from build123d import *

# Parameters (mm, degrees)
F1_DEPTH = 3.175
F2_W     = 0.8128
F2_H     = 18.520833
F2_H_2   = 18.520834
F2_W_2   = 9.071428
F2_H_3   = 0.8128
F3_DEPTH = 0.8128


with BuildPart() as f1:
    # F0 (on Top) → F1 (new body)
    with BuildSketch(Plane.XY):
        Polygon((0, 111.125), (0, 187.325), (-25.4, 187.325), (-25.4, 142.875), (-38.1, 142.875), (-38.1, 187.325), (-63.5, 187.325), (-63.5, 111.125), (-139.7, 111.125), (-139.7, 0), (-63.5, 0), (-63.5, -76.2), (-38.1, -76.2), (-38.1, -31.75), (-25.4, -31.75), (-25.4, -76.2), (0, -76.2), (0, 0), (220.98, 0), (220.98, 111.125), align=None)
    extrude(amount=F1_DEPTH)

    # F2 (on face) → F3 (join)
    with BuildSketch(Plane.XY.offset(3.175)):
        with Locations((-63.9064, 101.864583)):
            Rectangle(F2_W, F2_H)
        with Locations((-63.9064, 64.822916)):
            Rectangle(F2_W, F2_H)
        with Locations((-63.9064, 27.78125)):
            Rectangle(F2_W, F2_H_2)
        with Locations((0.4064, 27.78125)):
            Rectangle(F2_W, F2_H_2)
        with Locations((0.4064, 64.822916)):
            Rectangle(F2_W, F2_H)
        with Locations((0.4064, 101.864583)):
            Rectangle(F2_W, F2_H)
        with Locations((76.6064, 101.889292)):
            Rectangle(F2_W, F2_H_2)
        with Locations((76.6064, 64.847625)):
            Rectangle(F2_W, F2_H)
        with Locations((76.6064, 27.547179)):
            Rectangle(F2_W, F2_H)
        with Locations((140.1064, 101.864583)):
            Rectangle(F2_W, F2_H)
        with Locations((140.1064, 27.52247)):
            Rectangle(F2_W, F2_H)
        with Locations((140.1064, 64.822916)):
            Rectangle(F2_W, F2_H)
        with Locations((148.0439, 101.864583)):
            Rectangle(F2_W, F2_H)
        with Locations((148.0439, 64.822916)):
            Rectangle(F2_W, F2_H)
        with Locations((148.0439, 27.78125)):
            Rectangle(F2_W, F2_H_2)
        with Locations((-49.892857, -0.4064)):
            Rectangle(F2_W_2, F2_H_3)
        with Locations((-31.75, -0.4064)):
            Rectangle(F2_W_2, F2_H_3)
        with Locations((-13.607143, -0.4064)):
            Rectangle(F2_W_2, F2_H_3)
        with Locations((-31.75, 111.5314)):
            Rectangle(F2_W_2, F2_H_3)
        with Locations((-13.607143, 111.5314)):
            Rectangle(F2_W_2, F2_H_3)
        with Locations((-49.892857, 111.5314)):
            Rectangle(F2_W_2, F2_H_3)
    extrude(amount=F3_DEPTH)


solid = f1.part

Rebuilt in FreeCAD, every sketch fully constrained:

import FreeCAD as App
import Part
import Sketcher

V = App.Vector
Q = App.Units.Quantity

doc = App.newDocument("Part")
body = doc.addObject("PartDesign::Body", "Body")

# Sketch on XY plane
sketch1 = body.newObject("Sketcher::SketchObject", "Sketch")
sketch1.AttachmentSupport = (doc.getObject("XY_Plane"), [""])
sketch1.MapMode = "FlatFace"
sketch1.addGeometry([
    Part.LineSegment(V(0, 111.125, 0), V(0, 187.325, 0)),  # 0
    Part.LineSegment(V(0, 187.325, 0), V(-25.4, 187.325, 0)),  # 1
    Part.LineSegment(V(-25.4, 187.325, 0), V(-25.4, 142.875, 0)),  # 2
    Part.LineSegment(V(-25.4, 142.875, 0), V(-38.1, 142.875, 0)),  # 3
    Part.LineSegment(V(-38.1, 142.875, 0), V(-38.1, 187.325, 0)),  # 4
    Part.LineSegment(V(-38.1, 187.325, 0), V(-63.5, 187.325, 0)),  # 5
    Part.LineSegment(V(-63.5, 187.325, 0), V(-63.5, 111.125, 0)),  # 6
    Part.LineSegment(V(-63.5, 111.125, 0), V(-139.7, 111.125, 0)),  # 7
    Part.LineSegment(V(-139.7, 111.125, 0), V(-139.7, 0, 0)),  # 8
    Part.LineSegment(V(-139.7, 0, 0), V(-63.5, 0, 0)),  # 9
    Part.LineSegment(V(-63.5, 0, 0), V(-63.5, -76.2, 0)),  # 10
    Part.LineSegment(V(-63.5, -76.2, 0), V(-38.1, -76.2, 0)),  # 11
    Part.LineSegment(V(-38.1, -76.2, 0), V(-38.1, -31.75, 0)),  # 12
    Part.LineSegment(V(-38.1, -31.75, 0), V(-25.4, -31.75, 0)),  # 13
    Part.LineSegment(V(-25.4, -31.75, 0), V(-25.4, -76.2, 0)),  # 14
    Part.LineSegment(V(-25.4, -76.2, 0), V(0, -76.2, 0)),  # 15
    Part.LineSegment(V(0, -76.2, 0), V(0, 0, 0)),  # 16
    Part.LineSegment(V(0, 0, 0), V(220.98, 0, 0)),  # 17
    Part.LineSegment(V(220.98, 0, 0), V(220.98, 111.125, 0)),  # 18
    Part.LineSegment(V(220.98, 111.125, 0), V(0, 111.125, 0)),  # 19
], False)
sketch1.addConstraint([
    Sketcher.Constraint("Coincident", 0, 2, 1, 1),
    Sketcher.Constraint("Coincident", 1, 2, 2, 1),
    Sketcher.Constraint("Coincident", 2, 2, 3, 1),
    Sketcher.Constraint("Coincident", 3, 2, 4, 1),
    Sketcher.Constraint("Coincident", 4, 2, 5, 1),
    Sketcher.Constraint("Coincident", 5, 2, 6, 1),
    Sketcher.Constraint("Coincident", 6, 2, 7, 1),
    Sketcher.Constraint("Coincident", 7, 2, 8, 1),
    Sketcher.Constraint("Coincident", 8, 2, 9, 1),
    Sketcher.Constraint("Coincident", 9, 2, 10, 1),
    Sketcher.Constraint("Coincident", 10, 2, 11, 1),
    Sketcher.Constraint("Coincident", 11, 2, 12, 1),
    Sketcher.Constraint("Coincident", 12, 2, 13, 1),
    Sketcher.Constraint("Coincident", 13, 2, 14, 1),
    Sketcher.Constraint("Coincident", 14, 2, 15, 1),
    Sketcher.Constraint("Coincident", 15, 2, 16, 1),
    Sketcher.Constraint("Coincident", 16, 2, 17, 1),
    Sketcher.Constraint("Coincident", 17, 2, 18, 1),
    Sketcher.Constraint("Coincident", 18, 2, 19, 1),
    Sketcher.Constraint("Coincident", 19, 2, 0, 1),
    Sketcher.Constraint("Vertical", 0),
    Sketcher.Constraint("Horizontal", 1),
    Sketcher.Constraint("Vertical", 2),
    Sketcher.Constraint("Horizontal", 3),
    Sketcher.Constraint("Vertical", 4),
    Sketcher.Constraint("Horizontal", 5),
    Sketcher.Constraint("Vertical", 6),
    Sketcher.Constraint("Horizontal", 7),
    Sketcher.Constraint("Vertical", 8),
    Sketcher.Constraint("Horizontal", 9),
    Sketcher.Constraint("Vertical", 10),
    Sketcher.Constraint("Horizontal", 11),
    Sketcher.Constraint("Vertical", 12),
    Sketcher.Constraint("Horizontal", 13),
    Sketcher.Constraint("Vertical", 14),
    Sketcher.Constraint("Horizontal", 15),
    Sketcher.Constraint("Vertical", 16),
    Sketcher.Constraint("Horizontal", 17),
    Sketcher.Constraint("Vertical", 18),
    Sketcher.Constraint("Horizontal", 19),
    Sketcher.Constraint("Coincident", 16, 2, -1, 1),
    Sketcher.Constraint("PointOnObject", 0, 2, -2),
    Sketcher.Constraint("PointOnObject", 8, 2, -1),
    Sketcher.Constraint("Horizontal", 1, 2, 4, 2),
    Sketcher.Constraint("Horizontal", 11, 2, 14, 2),
    Sketcher.Constraint("Horizontal", 7, 2, 18, 2),
    Sketcher.Constraint("Vertical", 6, 2, 9, 2),
    Sketcher.Constraint("Vertical", 4, 2, 11, 2),
    Sketcher.Constraint("Vertical", 2, 2, 13, 2),
    Sketcher.Constraint("Equal", 1, 5),
    Sketcher.Constraint("Equal", 9, 0),
    Sketcher.Constraint("Equal", 6, 10),
    Sketcher.Constraint("Equal", 4, 12),
    Sketcher.Constraint("DistanceX", 1, 2, 1, 1, Q("1 in")),
    Sketcher.Constraint("DistanceX", 7, 2, 7, 1, Q("3 in")),
    Sketcher.Constraint("DistanceX", 3, 2, 3, 1, Q("0.5 in")),
    Sketcher.Constraint("DistanceX", 17, 1, 17, 2, Q("8.7 in")),
    Sketcher.Constraint("DistanceY", 2, 2, 2, 1, Q("1.75 in")),
    Sketcher.Constraint("DistanceY", 8, 2, 8, 1, Q("4.375 in")),
])
pad1 = body.newObject("PartDesign::Pad", "Pad")
pad1.Profile = sketch1
pad1.Length = Q("0.125 in")

# Sketch on XY plane
sketch2 = body.newObject("Sketcher::SketchObject", "Sketch001")
sketch2.AttachmentSupport = (doc.getObject("XY_Plane"), [""])
sketch2.MapMode = "FlatFace"
sketch2.AttachmentOffset = App.Placement(V(0, 0, 0.125 * 25.4), App.Rotation())
sketch2.addGeometry([
    Part.LineSegment(V(-64.3128, 111.125, 0), V(-64.3128, 92.604167, 0)),  # 0
    Part.LineSegment(V(-64.3128, 92.604167, 0), V(-63.5, 92.604167, 0)),  # 1
    Part.LineSegment(V(-63.5, 92.604167, 0), V(-63.5, 111.125, 0)),  # 2
    Part.LineSegment(V(-63.5, 111.125, 0), V(-64.3128, 111.125, 0)),  # 3
    Part.LineSegment(V(-64.3128, 74.083332, 0), V(-64.3128, 55.5625, 0)),  # 4
    Part.LineSegment(V(-64.3128, 55.5625, 0), V(-63.5, 55.5625, 0)),  # 5
    Part.LineSegment(V(-63.5, 55.5625, 0), V(-63.5, 74.083332, 0)),  # 6
    Part.LineSegment(V(-63.5, 74.083332, 0), V(-64.3128, 74.083332, 0)),  # 7
    Part.LineSegment(V(-64.3128, 37.041667, 0), V(-64.3128, 18.520833, 0)),  # 8
    Part.LineSegment(V(-64.3128, 18.520833, 0), V(-63.5, 18.520833, 0)),  # 9
    Part.LineSegment(V(-63.5, 18.520833, 0), V(-63.5, 37.041667, 0)),  # 10
    Part.LineSegment(V(-63.5, 37.041667, 0), V(-64.3128, 37.041667, 0)),  # 11
    Part.LineSegment(V(0, 37.041667, 0), V(0, 18.520833, 0)),  # 12
    Part.LineSegment(V(0, 18.520833, 0), V(0.8128, 18.520833, 0)),  # 13
    Part.LineSegment(V(0.8128, 18.520833, 0), V(0.8128, 37.041667, 0)),  # 14
    Part.LineSegment(V(0.8128, 37.041667, 0), V(0, 37.041667, 0)),  # 15
    Part.LineSegment(V(0, 74.083332, 0), V(0, 55.5625, 0)),  # 16
    Part.LineSegment(V(0, 55.5625, 0), V(0.8128, 55.5625, 0)),  # 17
    Part.LineSegment(V(0.8128, 55.5625, 0), V(0.8128, 74.083332, 0)),  # 18
    Part.LineSegment(V(0.8128, 74.083332, 0), V(0, 74.083332, 0)),  # 19
    Part.LineSegment(V(0, 111.125, 0), V(0, 92.604167, 0)),  # 20
    Part.LineSegment(V(0, 92.604167, 0), V(0.8128, 92.604167, 0)),  # 21
    Part.LineSegment(V(0.8128, 92.604167, 0), V(0.8128, 111.125, 0)),  # 22
    Part.LineSegment(V(0.8128, 111.125, 0), V(0, 111.125, 0)),  # 23
    Part.LineSegment(V(76.2, 111.149709, 0), V(76.2, 92.628875, 0)),  # 24
    Part.LineSegment(V(76.2, 92.628875, 0), V(77.0128, 92.628875, 0)),  # 25
    Part.LineSegment(V(77.0128, 92.628875, 0), V(77.0128, 111.149709, 0)),  # 26
    Part.LineSegment(V(77.0128, 111.149709, 0), V(76.2, 111.149709, 0)),  # 27
    Part.LineSegment(V(76.2, 74.108041, 0), V(76.2, 55.587209, 0)),  # 28
    Part.LineSegment(V(76.2, 55.587209, 0), V(77.0128, 55.587209, 0)),  # 29
    Part.LineSegment(V(77.0128, 55.587209, 0), V(77.0128, 74.108041, 0)),  # 30
    Part.LineSegment(V(77.0128, 74.108041, 0), V(76.2, 74.108041, 0)),  # 31
    Part.LineSegment(V(76.2, 36.807595, 0), V(76.2, 18.286762, 0)),  # 32
    Part.LineSegment(V(76.2, 18.286762, 0), V(77.0128, 18.286762, 0)),  # 33
    Part.LineSegment(V(77.0128, 18.286762, 0), V(77.0128, 36.807595, 0)),  # 34
    Part.LineSegment(V(77.0128, 36.807595, 0), V(76.2, 36.807595, 0)),  # 35
    Part.LineSegment(V(139.7, 111.125, 0), V(139.7, 92.604167, 0)),  # 36
    Part.LineSegment(V(139.7, 92.604167, 0), V(140.5128, 92.604167, 0)),  # 37
    Part.LineSegment(V(140.5128, 92.604167, 0), V(140.5128, 111.125, 0)),  # 38
    Part.LineSegment(V(140.5128, 111.125, 0), V(139.7, 111.125, 0)),  # 39
    Part.LineSegment(V(139.7, 36.782886, 0), V(139.7, 18.262054, 0)),  # 40
    Part.LineSegment(V(139.7, 18.262054, 0), V(140.5128, 18.262054, 0)),  # 41
    Part.LineSegment(V(140.5128, 18.262054, 0), V(140.5128, 36.782886, 0)),  # 42
    Part.LineSegment(V(140.5128, 36.782886, 0), V(139.7, 36.782886, 0)),  # 43
    Part.LineSegment(V(139.7, 74.083332, 0), V(139.7, 55.5625, 0)),  # 44
    Part.LineSegment(V(139.7, 55.5625, 0), V(140.5128, 55.5625, 0)),  # 45
    Part.LineSegment(V(140.5128, 55.5625, 0), V(140.5128, 74.083332, 0)),  # 46
    Part.LineSegment(V(140.5128, 74.083332, 0), V(139.7, 74.083332, 0)),  # 47
    Part.LineSegment(V(147.6375, 111.125, 0), V(147.6375, 92.604167, 0)),  # 48
    Part.LineSegment(V(147.6375, 92.604167, 0), V(148.4503, 92.604167, 0)),  # 49
    Part.LineSegment(V(148.4503, 92.604167, 0), V(148.4503, 111.125, 0)),  # 50
    Part.LineSegment(V(148.4503, 111.125, 0), V(147.6375, 111.125, 0)),  # 51
    Part.LineSegment(V(147.6375, 74.083332, 0), V(147.6375, 55.5625, 0)),  # 52
    Part.LineSegment(V(147.6375, 55.5625, 0), V(148.4503, 55.5625, 0)),  # 53
    Part.LineSegment(V(148.4503, 55.5625, 0), V(148.4503, 74.083332, 0)),  # 54
    Part.LineSegment(V(148.4503, 74.083332, 0), V(147.6375, 74.083332, 0)),  # 55
    Part.LineSegment(V(147.6375, 37.041667, 0), V(147.6375, 18.520833, 0)),  # 56
    Part.LineSegment(V(147.6375, 18.520833, 0), V(148.4503, 18.520833, 0)),  # 57
    Part.LineSegment(V(148.4503, 18.520833, 0), V(148.4503, 37.041667, 0)),  # 58
    Part.LineSegment(V(148.4503, 37.041667, 0), V(147.6375, 37.041667, 0)),  # 59
    Part.LineSegment(V(-54.428571, 0, 0), V(-54.428571, -0.8128, 0)),  # 60
    Part.LineSegment(V(-54.428571, -0.8128, 0), V(-45.357143, -0.8128, 0)),  # 61
    Part.LineSegment(V(-45.357143, -0.8128, 0), V(-45.357143, 0, 0)),  # 62
    Part.LineSegment(V(-45.357143, 0, 0), V(-54.428571, 0, 0)),  # 63
    Part.LineSegment(V(-36.285714, 0, 0), V(-36.285714, -0.8128, 0)),  # 64
    Part.LineSegment(V(-36.285714, -0.8128, 0), V(-27.214286, -0.8128, 0)),  # 65
    Part.LineSegment(V(-27.214286, -0.8128, 0), V(-27.214286, 0, 0)),  # 66
    Part.LineSegment(V(-27.214286, 0, 0), V(-36.285714, 0, 0)),  # 67
    Part.LineSegment(V(-18.142857, 0, 0), V(-18.142857, -0.8128, 0)),  # 68
    Part.LineSegment(V(-18.142857, -0.8128, 0), V(-9.071429, -0.8128, 0)),  # 69
    Part.LineSegment(V(-9.071429, -0.8128, 0), V(-9.071429, 0, 0)),  # 70
    Part.LineSegment(V(-9.071429, 0, 0), V(-18.142857, 0, 0)),  # 71
    Part.LineSegment(V(-36.285714, 111.9378, 0), V(-36.285714, 111.125, 0)),  # 72
    Part.LineSegment(V(-36.285714, 111.125, 0), V(-27.214286, 111.125, 0)),  # 73
    Part.LineSegment(V(-27.214286, 111.125, 0), V(-27.214286, 111.9378, 0)),  # 74
    Part.LineSegment(V(-27.214286, 111.9378, 0), V(-36.285714, 111.9378, 0)),  # 75
    Part.LineSegment(V(-18.142857, 111.9378, 0), V(-18.142857, 111.125, 0)),  # 76
    Part.LineSegment(V(-18.142857, 111.125, 0), V(-9.071429, 111.125, 0)),  # 77
    Part.LineSegment(V(-9.071429, 111.125, 0), V(-9.071429, 111.9378, 0)),  # 78
    Part.LineSegment(V(-9.071429, 111.9378, 0), V(-18.142857, 111.9378, 0)),  # 79
    Part.LineSegment(V(-54.428571, 111.9378, 0), V(-54.428571, 111.125, 0)),  # 80
    Part.LineSegment(V(-54.428571, 111.125, 0), V(-45.357143, 111.125, 0)),  # 81
    Part.LineSegment(V(-45.357143, 111.125, 0), V(-45.357143, 111.9378, 0)),  # 82
    Part.LineSegment(V(-45.357143, 111.9378, 0), V(-54.428571, 111.9378, 0)),  # 83
], False)
sketch2.addConstraint([
    Sketcher.Constraint("Coincident", 0, 2, 1, 1),
    Sketcher.Constraint("Coincident", 1, 2, 2, 1),
    Sketcher.Constraint("Coincident", 2, 2, 3, 1),
    Sketcher.Constraint("Coincident", 3, 2, 0, 1),
    Sketcher.Constraint("Coincident", 4, 2, 5, 1),
    Sketcher.Constraint("Coincident", 5, 2, 6, 1),
    Sketcher.Constraint("Coincident", 6, 2, 7, 1),
    Sketcher.Constraint("Coincident", 7, 2, 4, 1),
    Sketcher.Constraint("Coincident", 8, 2, 9, 1),
    Sketcher.Constraint("Coincident", 9, 2, 10, 1),
    Sketcher.Constraint("Coincident", 10, 2, 11, 1),
    Sketcher.Constraint("Coincident", 11, 2, 8, 1),
    Sketcher.Constraint("Coincident", 12, 2, 13, 1),
    Sketcher.Constraint("Coincident", 13, 2, 14, 1),
    Sketcher.Constraint("Coincident", 14, 2, 15, 1),
    Sketcher.Constraint("Coincident", 15, 2, 12, 1),
    Sketcher.Constraint("Coincident", 16, 2, 17, 1),
    Sketcher.Constraint("Coincident", 17, 2, 18, 1),
    Sketcher.Constraint("Coincident", 18, 2, 19, 1),
    Sketcher.Constraint("Coincident", 19, 2, 16, 1),
    Sketcher.Constraint("Coincident", 20, 2, 21, 1),
    Sketcher.Constraint("Coincident", 21, 2, 22, 1),
    Sketcher.Constraint("Coincident", 22, 2, 23, 1),
    Sketcher.Constraint("Coincident", 23, 2, 20, 1),
    Sketcher.Constraint("Coincident", 24, 2, 25, 1),
    Sketcher.Constraint("Coincident", 25, 2, 26, 1),
    Sketcher.Constraint("Coincident", 26, 2, 27, 1),
    Sketcher.Constraint("Coincident", 27, 2, 24, 1),
    Sketcher.Constraint("Coincident", 28, 2, 29, 1),
    Sketcher.Constraint("Coincident", 29, 2, 30, 1),
    Sketcher.Constraint("Coincident", 30, 2, 31, 1),
    Sketcher.Constraint("Coincident", 31, 2, 28, 1),
    Sketcher.Constraint("Coincident", 32, 2, 33, 1),
    Sketcher.Constraint("Coincident", 33, 2, 34, 1),
    Sketcher.Constraint("Coincident", 34, 2, 35, 1),
    Sketcher.Constraint("Coincident", 35, 2, 32, 1),
    Sketcher.Constraint("Coincident", 36, 2, 37, 1),
    Sketcher.Constraint("Coincident", 37, 2, 38, 1),
    Sketcher.Constraint("Coincident", 38, 2, 39, 1),
    Sketcher.Constraint("Coincident", 39, 2, 36, 1),
    Sketcher.Constraint("Coincident", 40, 2, 41, 1),
    Sketcher.Constraint("Coincident", 41, 2, 42, 1),
    Sketcher.Constraint("Coincident", 42, 2, 43, 1),
    Sketcher.Constraint("Coincident", 43, 2, 40, 1),
    Sketcher.Constraint("Coincident", 44, 2, 45, 1),
    Sketcher.Constraint("Coincident", 45, 2, 46, 1),
    Sketcher.Constraint("Coincident", 46, 2, 47, 1),
    Sketcher.Constraint("Coincident", 47, 2, 44, 1),
    Sketcher.Constraint("Coincident", 48, 2, 49, 1),
    Sketcher.Constraint("Coincident", 49, 2, 50, 1),
    Sketcher.Constraint("Coincident", 50, 2, 51, 1),
    Sketcher.Constraint("Coincident", 51, 2, 48, 1),
    Sketcher.Constraint("Coincident", 52, 2, 53, 1),
    Sketcher.Constraint("Coincident", 53, 2, 54, 1),
    Sketcher.Constraint("Coincident", 54, 2, 55, 1),
    Sketcher.Constraint("Coincident", 55, 2, 52, 1),
    Sketcher.Constraint("Coincident", 56, 2, 57, 1),
    Sketcher.Constraint("Coincident", 57, 2, 58, 1),
    Sketcher.Constraint("Coincident", 58, 2, 59, 1),
    Sketcher.Constraint("Coincident", 59, 2, 56, 1),
    Sketcher.Constraint("Coincident", 60, 2, 61, 1),
    Sketcher.Constraint("Coincident", 61, 2, 62, 1),
    Sketcher.Constraint("Coincident", 62, 2, 63, 1),
    Sketcher.Constraint("Coincident", 63, 2, 60, 1),
    Sketcher.Constraint("Coincident", 64, 2, 65, 1),
    Sketcher.Constraint("Coincident", 65, 2, 66, 1),
    Sketcher.Constraint("Coincident", 66, 2, 67, 1),
    Sketcher.Constraint("Coincident", 67, 2, 64, 1),
    Sketcher.Constraint("Coincident", 68, 2, 69, 1),
    Sketcher.Constraint("Coincident", 69, 2, 70, 1),
    Sketcher.Constraint("Coincident", 70, 2, 71, 1),
    Sketcher.Constraint("Coincident", 71, 2, 68, 1),
    Sketcher.Constraint("Coincident", 72, 2, 73, 1),
    Sketcher.Constraint("Coincident", 73, 2, 74, 1),
    Sketcher.Constraint("Coincident", 74, 2, 75, 1),
    Sketcher.Constraint("Coincident", 75, 2, 72, 1),
    Sketcher.Constraint("Coincident", 76, 2, 77, 1),
    Sketcher.Constraint("Coincident", 77, 2, 78, 1),
    Sketcher.Constraint("Coincident", 78, 2, 79, 1),
    Sketcher.Constraint("Coincident", 79, 2, 76, 1),
    Sketcher.Constraint("Coincident", 80, 2, 81, 1),
    Sketcher.Constraint("Coincident", 81, 2, 82, 1),
    Sketcher.Constraint("Coincident", 82, 2, 83, 1),
    Sketcher.Constraint("Coincident", 83, 2, 80, 1),
    Sketcher.Constraint("Vertical", 0),
    Sketcher.Constraint("Horizontal", 1),
    Sketcher.Constraint("Vertical", 2),
    Sketcher.Constraint("Horizontal", 3),
    Sketcher.Constraint("Vertical", 4),
    Sketcher.Constraint("Horizontal", 5),
    Sketcher.Constraint("Vertical", 6),
    Sketcher.Constraint("Horizontal", 7),
    Sketcher.Constraint("Vertical", 8),
    Sketcher.Constraint("Horizontal", 9),
    Sketcher.Constraint("Vertical", 10),
    Sketcher.Constraint("Horizontal", 11),
    Sketcher.Constraint("Vertical", 12),
    Sketcher.Constraint("Horizontal", 13),
    Sketcher.Constraint("Vertical", 14),
    Sketcher.Constraint("Horizontal", 15),
    Sketcher.Constraint("Vertical", 16),
    Sketcher.Constraint("Horizontal", 17),
    Sketcher.Constraint("Vertical", 18),
    Sketcher.Constraint("Horizontal", 19),
    Sketcher.Constraint("Vertical", 20),
    Sketcher.Constraint("Horizontal", 21),
    Sketcher.Constraint("Vertical", 22),
    Sketcher.Constraint("Horizontal", 23),
    Sketcher.Constraint("Vertical", 24),
    Sketcher.Constraint("Horizontal", 25),
    Sketcher.Constraint("Vertical", 26),
    Sketcher.Constraint("Horizontal", 27),
    Sketcher.Constraint("Vertical", 28),
    Sketcher.Constraint("Horizontal", 29),
    Sketcher.Constraint("Vertical", 30),
    Sketcher.Constraint("Horizontal", 31),
    Sketcher.Constraint("Vertical", 32),
    Sketcher.Constraint("Horizontal", 33),
    Sketcher.Constraint("Vertical", 34),
    Sketcher.Constraint("Horizontal", 35),
    Sketcher.Constraint("Vertical", 36),
    Sketcher.Constraint("Horizontal", 37),
    Sketcher.Constraint("Vertical", 38),
    Sketcher.Constraint("Horizontal", 39),
    Sketcher.Constraint("Vertical", 40),
    Sketcher.Constraint("Horizontal", 41),
    Sketcher.Constraint("Vertical", 42),
    Sketcher.Constraint("Horizontal", 43),
    Sketcher.Constraint("Vertical", 44),
    Sketcher.Constraint("Horizontal", 45),
    Sketcher.Constraint("Vertical", 46),
    Sketcher.Constraint("Horizontal", 47),
    Sketcher.Constraint("Vertical", 48),
    Sketcher.Constraint("Horizontal", 49),
    Sketcher.Constraint("Vertical", 50),
    Sketcher.Constraint("Horizontal", 51),
    Sketcher.Constraint("Vertical", 52),
    Sketcher.Constraint("Horizontal", 53),
    Sketcher.Constraint("Vertical", 54),
    Sketcher.Constraint("Horizontal", 55),
    Sketcher.Constraint("Vertical", 56),
    Sketcher.Constraint("Horizontal", 57),
    Sketcher.Constraint("Vertical", 58),
    Sketcher.Constraint("Horizontal", 59),
    Sketcher.Constraint("Vertical", 60),
    Sketcher.Constraint("Horizontal", 61),
    Sketcher.Constraint("Vertical", 62),
    Sketcher.Constraint("Horizontal", 63),
    Sketcher.Constraint("Vertical", 64),
    Sketcher.Constraint("Horizontal", 65),
    Sketcher.Constraint("Vertical", 66),
    Sketcher.Constraint("Horizontal", 67),
    Sketcher.Constraint("Vertical", 68),
    Sketcher.Constraint("Horizontal", 69),
    Sketcher.Constraint("Vertical", 70),
    Sketcher.Constraint("Horizontal", 71),
    Sketcher.Constraint("Vertical", 72),
    Sketcher.Constraint("Horizontal", 73),
    Sketcher.Constraint("Vertical", 74),
    Sketcher.Constraint("Horizontal", 75),
    Sketcher.Constraint("Vertical", 76),
    Sketcher.Constraint("Horizontal", 77),
    Sketcher.Constraint("Vertical", 78),
    Sketcher.Constraint("Horizontal", 79),
    Sketcher.Constraint("Vertical", 80),
    Sketcher.Constraint("Horizontal", 81),
    Sketcher.Constraint("Vertical", 82),
    Sketcher.Constraint("Horizontal", 83),
    Sketcher.Constraint("PointOnObject", 12, 2, -2),
    Sketcher.Constraint("PointOnObject", 16, 2, -2),
    Sketcher.Constraint("PointOnObject", 20, 2, -2),
    Sketcher.Constraint("PointOnObject", 62, 2, -1),
    Sketcher.Constraint("PointOnObject", 66, 2, -1),
    Sketcher.Constraint("PointOnObject", 70, 2, -1),
    Sketcher.Constraint("Horizontal", 9, 2, 12, 2),
    Sketcher.Constraint("Horizontal", 11, 2, 14, 2),
    Sketcher.Constraint("Horizontal", 5, 2, 16, 2),
    Sketcher.Constraint("Horizontal", 7, 2, 18, 2),
    Sketcher.Constraint("Horizontal", 1, 2, 20, 2),
    Sketcher.Constraint("Horizontal", 3, 2, 22, 2),
    Sketcher.Constraint("Horizontal", 21, 2, 36, 2),
    Sketcher.Constraint("Horizontal", 23, 2, 38, 2),
    Sketcher.Constraint("Horizontal", 17, 2, 44, 2),
    Sketcher.Constraint("Horizontal", 19, 2, 46, 2),
    Sketcher.Constraint("Horizontal", 37, 2, 48, 2),
    Sketcher.Constraint("Horizontal", 39, 2, 50, 2),
    Sketcher.Constraint("Horizontal", 45, 2, 52, 2),
    Sketcher.Constraint("Horizontal", 47, 2, 54, 2),
    Sketcher.Constraint("Horizontal", 13, 2, 56, 2),
    Sketcher.Constraint("Horizontal", 15, 2, 58, 2),
    Sketcher.Constraint("Horizontal", 61, 2, 64, 2),
    Sketcher.Constraint("Horizontal", 65, 2, 68, 2),
    Sketcher.Constraint("Horizontal", 51, 2, 72, 2),
    Sketcher.Constraint("Horizontal", 73, 2, 76, 2),
    Sketcher.Constraint("Horizontal", 75, 2, 78, 2),
    Sketcher.Constraint("Horizontal", 77, 2, 80, 2),
    Sketcher.Constraint("Horizontal", 79, 2, 82, 2),
    Sketcher.Constraint("Vertical", 3, 2, 4, 2),
    Sketcher.Constraint("Vertical", 2, 2, 5, 2),
    Sketcher.Constraint("Vertical", 7, 2, 8, 2),
    Sketcher.Constraint("Vertical", 6, 2, 9, 2),
    Sketcher.Constraint("Vertical", 14, 2, 17, 2),
    Sketcher.Constraint("Vertical", 18, 2, 21, 2),
    Sketcher.Constraint("Vertical", 27, 2, 28, 2),
    Sketcher.Constraint("Vertical", 26, 2, 29, 2),
    Sketcher.Constraint("Vertical", 31, 2, 32, 2),
    Sketcher.Constraint("Vertical", 30, 2, 33, 2),
    Sketcher.Constraint("Vertical", 39, 2, 40, 2),
    Sketcher.Constraint("Vertical", 38, 2, 41, 2),
    Sketcher.Constraint("Vertical", 43, 2, 44, 2),
    Sketcher.Constraint("Vertical", 42, 2, 45, 2),
    Sketcher.Constraint("Vertical", 51, 2, 52, 2),
    Sketcher.Constraint("Vertical", 50, 2, 53, 2),
    Sketcher.Constraint("Vertical", 55, 2, 56, 2),
    Sketcher.Constraint("Vertical", 54, 2, 57, 2),
    Sketcher.Constraint("Vertical", 67, 2, 72, 2),
    Sketcher.Constraint("Vertical", 66, 2, 73, 2),
    Sketcher.Constraint("Vertical", 71, 2, 76, 2),
    Sketcher.Constraint("Vertical", 70, 2, 77, 2),
    Sketcher.Constraint("Vertical", 63, 2, 80, 2),
    Sketcher.Constraint("Vertical", 62, 2, 81, 2),
    Sketcher.Constraint("Equal", 11, 13),
    Sketcher.Constraint("Equal", 23, 25),
    Sketcher.Constraint("Equal", 35, 37),
    Sketcher.Constraint("Equal", 47, 49),
    Sketcher.Constraint("Equal", 63, 65),
    Sketcher.Constraint("Equal", 67, 69),
    Sketcher.Constraint("Equal", 2, 4),
    Sketcher.Constraint("Equal", 6, 8),
    Sketcher.Constraint("Equal", 22, 24),
    Sketcher.Constraint("Equal", 26, 28),
    Sketcher.Constraint("Equal", 30, 32),
    Sketcher.Constraint("Equal", 38, 40),
    Sketcher.Constraint("Equal", 59, 60),
    Sketcher.Constraint("Equal", 70, 72),
    Sketcher.Constraint("DistanceX", -1, 1, 24, 2, Q("3 in")),
    Sketcher.Constraint("DistanceX", 1, 2, -1, 1, Q("2.5 in")),
    Sketcher.Constraint("DistanceX", -1, 1, 36, 2, Q("5.5 in")),
    Sketcher.Constraint("DistanceX", 1, 1, 1, 2, Q("0.032 in")),
    Sketcher.Constraint("DistanceY", -1, 1, 2, 2, Q("4.375 in")),
    Sketcher.Constraint("DistanceY", -1, 1, 4, 2, Q("2.1875 in")),
    Sketcher.Constraint("DistanceX", -1, 1, 48, 2, Q("5.8125 in")),
    Sketcher.Constraint("DistanceX", 61, 1, 61, 2, Q("9.071428 mm")),
    Sketcher.Constraint("DistanceY", 0, 2, 0, 1, Q("18.520833 mm")),
    Sketcher.Constraint("DistanceY", -1, 1, 26, 2, Q("111.149709 mm")),
    Sketcher.Constraint("DistanceY", -1, 1, 28, 2, Q("55.587209 mm")),
    Sketcher.Constraint("DistanceX", 60, 2, -1, 1, Q("54.428571 mm")),
    Sketcher.Constraint("DistanceX", 69, 2, -1, 1, Q("9.071429 mm")),
    Sketcher.Constraint("DistanceY", -1, 1, 8, 2, Q("18.520833 mm")),
    Sketcher.Constraint("DistanceY", -1, 1, 32, 2, Q("18.286762 mm")),
    Sketcher.Constraint("DistanceY", -1, 1, 40, 2, Q("18.262054 mm")),
    Sketcher.Constraint("DistanceX", 64, 2, -1, 1, Q("36.285714 mm")),
])
pad2 = body.newObject("PartDesign::Pad", "Pad001")
pad2.Profile = sketch2
pad2.Length = Q("0.032 in")

doc.recompute()
